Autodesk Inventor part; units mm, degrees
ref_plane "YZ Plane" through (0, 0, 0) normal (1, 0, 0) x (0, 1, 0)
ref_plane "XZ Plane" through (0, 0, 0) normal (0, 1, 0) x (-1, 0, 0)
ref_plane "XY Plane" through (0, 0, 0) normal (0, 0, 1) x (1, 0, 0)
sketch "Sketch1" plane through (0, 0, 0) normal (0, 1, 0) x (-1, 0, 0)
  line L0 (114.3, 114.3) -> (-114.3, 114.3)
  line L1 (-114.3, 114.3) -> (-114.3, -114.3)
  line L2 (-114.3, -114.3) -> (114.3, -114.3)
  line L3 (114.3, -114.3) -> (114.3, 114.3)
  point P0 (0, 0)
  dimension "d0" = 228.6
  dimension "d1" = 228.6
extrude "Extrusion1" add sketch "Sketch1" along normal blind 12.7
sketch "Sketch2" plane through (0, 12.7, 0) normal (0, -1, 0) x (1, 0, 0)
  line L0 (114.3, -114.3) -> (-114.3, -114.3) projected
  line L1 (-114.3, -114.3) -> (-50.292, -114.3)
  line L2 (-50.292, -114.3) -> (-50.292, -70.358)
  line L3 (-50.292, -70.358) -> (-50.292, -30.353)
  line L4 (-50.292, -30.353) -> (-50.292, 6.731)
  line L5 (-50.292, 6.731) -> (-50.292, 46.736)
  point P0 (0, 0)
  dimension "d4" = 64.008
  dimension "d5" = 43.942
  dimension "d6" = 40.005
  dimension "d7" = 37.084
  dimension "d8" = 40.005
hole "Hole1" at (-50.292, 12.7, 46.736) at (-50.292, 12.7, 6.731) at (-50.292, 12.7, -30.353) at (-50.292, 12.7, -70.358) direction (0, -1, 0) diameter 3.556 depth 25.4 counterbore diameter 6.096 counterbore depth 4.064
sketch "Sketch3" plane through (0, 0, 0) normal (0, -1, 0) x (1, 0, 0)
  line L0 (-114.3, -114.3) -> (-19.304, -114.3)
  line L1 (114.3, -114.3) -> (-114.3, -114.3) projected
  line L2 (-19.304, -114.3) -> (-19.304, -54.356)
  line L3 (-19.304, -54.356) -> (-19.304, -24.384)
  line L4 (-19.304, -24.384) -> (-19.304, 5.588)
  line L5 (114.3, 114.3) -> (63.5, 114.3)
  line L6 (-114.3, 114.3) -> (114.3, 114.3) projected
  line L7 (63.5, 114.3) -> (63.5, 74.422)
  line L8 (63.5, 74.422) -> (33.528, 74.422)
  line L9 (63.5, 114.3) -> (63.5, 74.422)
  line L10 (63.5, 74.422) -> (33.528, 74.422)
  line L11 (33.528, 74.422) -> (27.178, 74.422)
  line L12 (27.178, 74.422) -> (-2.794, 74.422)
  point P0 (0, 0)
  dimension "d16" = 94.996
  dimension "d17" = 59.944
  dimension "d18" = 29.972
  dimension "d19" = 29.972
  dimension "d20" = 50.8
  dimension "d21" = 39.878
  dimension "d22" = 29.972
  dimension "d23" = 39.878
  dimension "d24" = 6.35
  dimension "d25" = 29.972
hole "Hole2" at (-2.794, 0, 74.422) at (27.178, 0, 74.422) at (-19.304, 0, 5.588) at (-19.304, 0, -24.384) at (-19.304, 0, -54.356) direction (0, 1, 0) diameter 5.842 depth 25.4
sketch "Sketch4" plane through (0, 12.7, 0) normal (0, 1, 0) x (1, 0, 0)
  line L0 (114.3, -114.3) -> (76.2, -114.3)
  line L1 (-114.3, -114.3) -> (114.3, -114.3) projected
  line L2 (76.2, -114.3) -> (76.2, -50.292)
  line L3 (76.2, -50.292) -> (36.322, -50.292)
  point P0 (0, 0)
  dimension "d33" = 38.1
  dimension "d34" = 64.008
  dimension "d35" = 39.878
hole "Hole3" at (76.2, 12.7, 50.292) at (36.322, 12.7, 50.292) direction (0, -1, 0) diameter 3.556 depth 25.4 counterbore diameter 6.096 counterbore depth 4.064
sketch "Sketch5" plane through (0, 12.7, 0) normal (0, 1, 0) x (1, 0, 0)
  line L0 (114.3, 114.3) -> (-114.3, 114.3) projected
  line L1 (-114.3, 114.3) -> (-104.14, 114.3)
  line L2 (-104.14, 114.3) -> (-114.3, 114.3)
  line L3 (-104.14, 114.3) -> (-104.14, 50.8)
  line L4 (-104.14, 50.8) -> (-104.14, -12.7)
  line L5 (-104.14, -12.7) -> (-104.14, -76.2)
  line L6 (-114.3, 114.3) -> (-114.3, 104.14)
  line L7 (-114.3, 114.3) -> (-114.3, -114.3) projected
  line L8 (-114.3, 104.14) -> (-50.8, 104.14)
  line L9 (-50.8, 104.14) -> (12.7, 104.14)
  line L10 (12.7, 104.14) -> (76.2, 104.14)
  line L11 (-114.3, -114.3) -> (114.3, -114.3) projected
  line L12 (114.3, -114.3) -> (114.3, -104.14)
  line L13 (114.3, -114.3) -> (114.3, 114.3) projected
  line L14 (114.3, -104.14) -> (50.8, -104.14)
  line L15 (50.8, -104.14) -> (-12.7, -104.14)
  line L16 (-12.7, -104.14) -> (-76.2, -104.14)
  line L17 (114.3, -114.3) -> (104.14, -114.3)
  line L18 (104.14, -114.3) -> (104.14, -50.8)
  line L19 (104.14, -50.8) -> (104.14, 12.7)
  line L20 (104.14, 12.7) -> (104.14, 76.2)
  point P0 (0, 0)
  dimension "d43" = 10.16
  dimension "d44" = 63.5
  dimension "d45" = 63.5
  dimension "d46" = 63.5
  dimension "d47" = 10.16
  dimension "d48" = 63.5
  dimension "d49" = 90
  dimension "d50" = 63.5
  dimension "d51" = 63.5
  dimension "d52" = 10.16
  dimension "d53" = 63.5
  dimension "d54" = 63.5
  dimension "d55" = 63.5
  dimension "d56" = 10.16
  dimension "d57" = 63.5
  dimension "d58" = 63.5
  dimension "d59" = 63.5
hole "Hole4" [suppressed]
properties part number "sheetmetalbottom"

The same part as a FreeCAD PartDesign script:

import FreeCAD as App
import Part
import Sketcher
from FreeCAD import Vector
Q = App.Units.Quantity


def add_polygon(sketch, points):
    """Adds a closed chain of lines whose ends are joined by coincident constraints."""
    first, n = sketch.GeometryCount, len(points)
    for a, b in zip(points, points[1:] + points[:1]):
        sketch.addGeometry(Part.LineSegment(App.Vector(*a, 0), App.Vector(*b, 0)), False)
    for i in range(n):
        sketch.addConstraint(Sketcher.Constraint("Coincident", first + i, 2, first + (i + 1) % n, 1))

doc = App.newDocument("Part")
body = doc.addObject("PartDesign::Body", "Body")

# Sketch on XZ plane
sketch1 = body.newObject("Sketcher::SketchObject", "Sketch")
sketch1.AttachmentSupport = (doc.getObject("XZ_Plane"), [""])
sketch1.MapMode = "FlatFace"
add_polygon(sketch1, [(-114, -114), (-114, 114), (114, 114), (114, -114)])  # lines 0-3
sketch1.addConstraint([
    Sketcher.Constraint("Vertical", 0),
    Sketcher.Constraint("Horizontal", 1),
    Sketcher.Constraint("Vertical", 2),
    Sketcher.Constraint("Horizontal", 3),
    Sketcher.Constraint("Symmetric", 0, 2, 2, 2, -1, 1),
    Sketcher.Constraint("Equal", 3, 0),
    Sketcher.Constraint("DistanceX", 1, 1, 1, 2, Q("9 in")),
])
pad1 = body.newObject("PartDesign::Pad", "Pad")
pad1.Profile = sketch1
pad1.Length = Q("0.5 in")
pad1.Reversed = True

# Sketch on XZ plane
sketch2 = body.newObject("Sketcher::SketchObject", "Sketch001")
sketch2.AttachmentSupport = (doc.getObject("XZ_Plane"), [""])
sketch2.MapMode = "FlatFace"
sketch2.AttachmentOffset = App.Placement(Vector(0, 0, -0.5 * 25.4), App.Rotation())
sketch2.addGeometry([
    Part.Circle(Vector(-50.3, 46.7, 0), Vector(0, 0, 1), 1.8),
    Part.Circle(Vector(-50.3, 6.7, 0), Vector(0, 0, 1), 1.8),
    Part.Circle(Vector(-50.3, -30.4, 0), Vector(0, 0, 1), 1.8),
    Part.Circle(Vector(-50.3, -70.4, 0), Vector(0, 0, 1), 1.8),
], False)
sketch2.addConstraint([
    Sketcher.Constraint("Equal", 0, 1),
    Sketcher.Constraint("Equal", 1, 2),
    Sketcher.Constraint("Equal", 2, 3),
    Sketcher.Constraint("Vertical", 0, 3, 1, 3),
    Sketcher.Constraint("Vertical", 1, 3, 2, 3),
    Sketcher.Constraint("Vertical", 2, 3, 3, 3),
    Sketcher.Constraint("Diameter", 0, Q("0.14 in")),
    Sketcher.Constraint("DistanceX", 0, 3, -1, 1, Q("1.98 in")),
    Sketcher.Constraint("DistanceY", -1, 1, 0, 3, Q("1.84 in")),
    Sketcher.Constraint("DistanceY", 3, 3, -1, 1, Q("2.77 in")),
    Sketcher.Constraint("DistanceY", 2, 3, 1, 3, Q("1.46 in")),
    Sketcher.Constraint("DistanceY", -1, 1, 1, 3, Q("0.265 in")),
])
doc.recompute()
hole = body.newObject("PartDesign::Hole", "Hole")
hole.Profile = sketch2
hole.ThreadType = "None"
hole.Diameter = Q("0.14 in")
hole.DepthType = "Dimension"
hole.Depth = Q("1 in")
hole.DrillPoint = "Flat"
hole.HoleCutType = "Counterbore"
hole.HoleCutDiameter = Q("0.24 in")
hole.HoleCutDepth = Q("0.16 in")
hole.Reversed = True

# Sketch on XZ plane
sketch3 = body.newObject("Sketcher::SketchObject", "Sketch002")
sketch3.AttachmentSupport = (doc.getObject("XZ_Plane"), [""])
sketch3.MapMode = "FlatFace"
sketch3.addGeometry([
    Part.Circle(Vector(-2.8, 74.4, 0), Vector(0, 0, 1), 2.9),  # 0
    Part.Circle(Vector(27.2, 74.4, 0), Vector(0, 0, 1), 2.9),  # 1
    Part.Circle(Vector(-19.3, 5.6, 0), Vector(0, 0, 1), 2.9),  # 2
    Part.Circle(Vector(-19.3, -24.4, 0), Vector(0, 0, 1), 2.9),  # 3
    Part.Circle(Vector(-19.3, -54.4, 0), Vector(0, 0, 1), 2.9),  # 4
], False)
sketch3.addConstraint([
    Sketcher.Constraint("Equal", 0, 1),
    Sketcher.Constraint("Equal", 1, 2),
    Sketcher.Constraint("Equal", 2, 3),
    Sketcher.Constraint("Equal", 3, 4),
    Sketcher.Constraint("Horizontal", 0, 3, 1, 3),
    Sketcher.Constraint("Vertical", 2, 3, 3, 3),
    Sketcher.Constraint("Vertical", 3, 3, 4, 3),
    Sketcher.Constraint("Diameter", 0, Q("0.23 in")),
    Sketcher.Constraint("DistanceX", 0, 3, -1, 1, Q("0.11 in")),
    Sketcher.Constraint("DistanceY", -1, 1, 0, 3, Q("2.93 in")),
    Sketcher.Constraint("DistanceX", -1, 1, 1, 3, Q("1.07 in")),
    Sketcher.Constraint("DistanceX", 2, 3, -1, 1, Q("0.76 in")),
    Sketcher.Constraint("DistanceY", -1, 1, 2, 3, Q("0.22 in")),
    Sketcher.Constraint("DistanceY", 3, 3, -1, 1, Q("0.96 in")),
    Sketcher.Constraint("DistanceY", 4, 3, -1, 1, Q("2.14 in")),
])
doc.recompute()
hole2 = body.newObject("PartDesign::Hole", "Hole001")
hole2.Profile = sketch3
hole2.ThreadType = "None"
hole2.Diameter = Q("0.23 in")
hole2.DepthType = "Dimension"
hole2.Depth = Q("1 in")
hole2.DrillPoint = "Flat"

# Sketch on XZ plane
sketch4 = body.newObject("Sketcher::SketchObject", "Sketch003")
sketch4.AttachmentSupport = (doc.getObject("XZ_Plane"), [""])
sketch4.MapMode = "FlatFace"
sketch4.AttachmentOffset = App.Placement(Vector(0, 0, -0.5 * 25.4), App.Rotation())
sketch4.addGeometry([
    Part.Circle(Vector(76.2, 50.3, 0), Vector(0, 0, 1), 1.8),
    Part.Circle(Vector(36.3, 50.3, 0), Vector(0, 0, 1), 1.8),
], False)
sketch4.addConstraint([
    Sketcher.Constraint("Equal", 0, 1),
    Sketcher.Constraint("Horizontal", 0, 3, 1, 3),
    Sketcher.Constraint("Diameter", 0, Q("0.14 in")),
    Sketcher.Constraint("DistanceX", -1, 1, 0, 3, Q("3 in")),
    Sketcher.Constraint("DistanceY", -1, 1, 0, 3, Q("1.98 in")),
    Sketcher.Constraint("DistanceX", -1, 1, 1, 3, Q("1.43 in")),
])
doc.recompute()
hole3 = body.newObject("PartDesign::Hole", "Hole002")
hole3.Profile = sketch4
hole3.ThreadType = "None"
hole3.Diameter = Q("0.14 in")
hole3.DepthType = "Dimension"
hole3.Depth = Q("1 in")
hole3.DrillPoint = "Flat"
hole3.HoleCutType = "Counterbore"
hole3.HoleCutDiameter = Q("0.24 in")
hole3.HoleCutDepth = Q("0.16 in")
hole3.Reversed = True

doc.recompute()
